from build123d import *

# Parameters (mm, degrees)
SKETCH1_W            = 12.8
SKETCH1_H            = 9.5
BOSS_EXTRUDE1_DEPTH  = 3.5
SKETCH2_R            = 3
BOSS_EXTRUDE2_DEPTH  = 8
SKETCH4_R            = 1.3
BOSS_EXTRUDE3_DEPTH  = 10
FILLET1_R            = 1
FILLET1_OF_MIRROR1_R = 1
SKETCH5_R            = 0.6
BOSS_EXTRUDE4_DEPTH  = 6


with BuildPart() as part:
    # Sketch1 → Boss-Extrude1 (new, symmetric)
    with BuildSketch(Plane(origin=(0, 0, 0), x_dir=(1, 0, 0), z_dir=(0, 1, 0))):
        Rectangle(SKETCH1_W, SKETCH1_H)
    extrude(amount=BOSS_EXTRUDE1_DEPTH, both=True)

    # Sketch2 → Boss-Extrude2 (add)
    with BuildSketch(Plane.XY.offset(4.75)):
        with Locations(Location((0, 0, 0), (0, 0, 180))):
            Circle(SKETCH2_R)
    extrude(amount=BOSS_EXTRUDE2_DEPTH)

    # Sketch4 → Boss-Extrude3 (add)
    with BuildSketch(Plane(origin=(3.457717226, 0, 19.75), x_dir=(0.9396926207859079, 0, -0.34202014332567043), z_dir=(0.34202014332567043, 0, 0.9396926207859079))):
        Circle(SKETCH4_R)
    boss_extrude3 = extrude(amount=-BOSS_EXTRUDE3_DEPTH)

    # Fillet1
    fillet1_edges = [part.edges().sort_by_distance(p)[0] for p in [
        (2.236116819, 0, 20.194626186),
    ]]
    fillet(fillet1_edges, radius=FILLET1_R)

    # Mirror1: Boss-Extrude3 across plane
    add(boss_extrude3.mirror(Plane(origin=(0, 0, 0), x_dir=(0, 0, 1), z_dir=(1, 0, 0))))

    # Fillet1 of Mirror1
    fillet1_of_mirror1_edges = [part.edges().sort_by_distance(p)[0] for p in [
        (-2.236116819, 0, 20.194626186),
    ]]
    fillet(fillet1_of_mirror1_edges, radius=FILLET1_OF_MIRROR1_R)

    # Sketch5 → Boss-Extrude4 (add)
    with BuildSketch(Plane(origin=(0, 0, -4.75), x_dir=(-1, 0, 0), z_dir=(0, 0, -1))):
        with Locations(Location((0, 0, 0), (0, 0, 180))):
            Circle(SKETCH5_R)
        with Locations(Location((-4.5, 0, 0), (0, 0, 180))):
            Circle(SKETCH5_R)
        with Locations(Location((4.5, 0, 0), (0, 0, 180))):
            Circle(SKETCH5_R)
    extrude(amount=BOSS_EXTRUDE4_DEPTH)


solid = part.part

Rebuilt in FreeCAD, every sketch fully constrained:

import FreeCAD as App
import Part
import Sketcher

V = App.Vector
Q = App.Units.Quantity


def edges_at(feature, points):
    """Names of the edges that pass closest to the given points."""
    edges = feature.Shape.Edges
    near = lambda p: min(range(len(edges)), key=lambda i: edges[i].distToShape(Part.Vertex(*p))[0])
    return sorted({f"Edge{near(p) + 1}" for p in points})


def add_polygon(sketch, points):
    """Adds a closed chain of lines whose ends are joined by coincident constraints."""
    first, n = sketch.GeometryCount, len(points)
    for a, b in zip(points, points[1:] + points[:1]):
        sketch.addGeometry(Part.LineSegment(App.Vector(*a, 0), App.Vector(*b, 0)), False)
    for i in range(n):
        sketch.addConstraint(Sketcher.Constraint("Coincident", first + i, 2, first + (i + 1) % n, 1))

doc = App.newDocument("Part")
body = doc.addObject("PartDesign::Body", "Body")

sketch1 = body.newObject("Sketcher::SketchObject", "Sketch")
sketch1.AttachmentSupport = (doc.getObject("XZ_Plane"), [""])
sketch1.MapMode = "FlatFace"
add_polygon(sketch1, [(-6, -5), (-6, 5), (6, 5), (6, -5)])
sketch1.addConstraint(Sketcher.Constraint("Vertical", 0))
sketch1.addConstraint(Sketcher.Constraint("Horizontal", 1))
sketch1.addConstraint(Sketcher.Constraint("Vertical", 2))
sketch1.addConstraint(Sketcher.Constraint("Horizontal", 3))
sketch1.addConstraint(Sketcher.Constraint("Symmetric", 0, 2, 2, 2, -1, 1))
sketch1.addConstraint(Sketcher.Constraint("DistanceX", 1, 1, 1, 2, Q("12.8 mm")))
sketch1.addConstraint(Sketcher.Constraint("DistanceY", 0, 1, 0, 2, Q("9.5 mm")))
pad1 = body.newObject("PartDesign::Pad", "Pad")
pad1.Profile = sketch1
pad1.Length = 7
pad1.Midplane = True

sketch2 = body.newObject("Sketcher::SketchObject", "Sketch001")
sketch2.AttachmentSupport = (doc.getObject("XY_Plane"), [""])
sketch2.MapMode = "FlatFace"
sketch2.AttachmentOffset = App.Placement(V(0, 0, 4.75), App.Rotation())
sketch2.addGeometry(Part.Circle(V(0, 0, 0), V(0, 0, 1), 3), False)
sketch2.addConstraint(Sketcher.Constraint("Coincident", 0, 3, -1, 1))
sketch2.addConstraint(Sketcher.Constraint("Diameter", 0, Q("6 mm")))
pad2 = body.newObject("PartDesign::Pad", "Pad001")
pad2.Profile = sketch2
pad2.Length = 8

sketch3 = body.newObject("Sketcher::SketchObject", "Sketch002")
sketch3.Placement = App.Placement(V(3.457717, 0, 19.75), App.Rotation(V(0.939692621, 0, -0.342020143), V(0, 1, 0), V(0.342020143, 0, 0.939692621), "ZXY"))
sketch3.addGeometry(Part.Circle(V(0, 0, 0), V(0, 0, 1), 1.3), False)
sketch3.addConstraint(Sketcher.Constraint("Coincident", 0, 3, -1, 1))
sketch3.addConstraint(Sketcher.Constraint("Diameter", 0, Q("2.6 mm")))
pad3 = body.newObject("PartDesign::Pad", "Pad002")
pad3.Profile = sketch3
pad3.Length = 10
pad3.Reversed = True
doc.recompute()

fillet = body.newObject("PartDesign::Fillet", "Fillet")
fillet.Base = (pad3, edges_at(pad3, [(2.236, 0, 20.195)]))
fillet.Radius = 1
doc.recompute()

mirrored = body.newObject("PartDesign::Mirrored", "Mirrored")
mirrored.Originals = [pad3]
mirrored.MirrorPlane = (doc.getObject("YZ_Plane"), [""])
body.Tip = mirrored
doc.recompute()

fillet2 = body.newObject("PartDesign::Fillet", "Fillet001")
fillet2.Base = (mirrored, edges_at(mirrored, [(-2.236, 0, 20.195)]))
fillet2.Radius = 1

sketch4 = body.newObject("Sketcher::SketchObject", "Sketch003")
sketch4.AttachmentSupport = (doc.getObject("XY_Plane"), [""])
sketch4.MapMode = "FlatFace"
sketch4.AttachmentOffset = App.Placement(V(0, 0, -4.75), App.Rotation())
sketch4.addGeometry(Part.Circle(V(0, 0, 0), V(0, 0, 1), 0.6), False)
sketch4.addGeometry(Part.Circle(V(4.5, 0, 0), V(0, 0, 1), 0.6), False)
sketch4.addGeometry(Part.Circle(V(-4.5, 0, 0), V(0, 0, 1), 0.6), False)
sketch4.addConstraint(Sketcher.Constraint("Coincident", 0, 3, -1, 1))
sketch4.addConstraint(Sketcher.Constraint("Equal", 0, 1))
sketch4.addConstraint(Sketcher.Constraint("Equal", 1, 2))
sketch4.addConstraint(Sketcher.Constraint("Symmetric", 1, 3, 2, 3, -1, 1))
sketch4.addConstraint(Sketcher.Constraint("PointOnObject", 1, 3, -1))
sketch4.addConstraint(Sketcher.Constraint("Diameter", 0, Q("1.2 mm")))
sketch4.addConstraint(Sketcher.Constraint("DistanceX", 2, 3, 1, 3, Q("9 mm")))
pad4 = body.newObject("PartDesign::Pad", "Pad003")
pad4.Profile = sketch4
pad4.Length = 6
pad4.Reversed = True

doc.recompute()
